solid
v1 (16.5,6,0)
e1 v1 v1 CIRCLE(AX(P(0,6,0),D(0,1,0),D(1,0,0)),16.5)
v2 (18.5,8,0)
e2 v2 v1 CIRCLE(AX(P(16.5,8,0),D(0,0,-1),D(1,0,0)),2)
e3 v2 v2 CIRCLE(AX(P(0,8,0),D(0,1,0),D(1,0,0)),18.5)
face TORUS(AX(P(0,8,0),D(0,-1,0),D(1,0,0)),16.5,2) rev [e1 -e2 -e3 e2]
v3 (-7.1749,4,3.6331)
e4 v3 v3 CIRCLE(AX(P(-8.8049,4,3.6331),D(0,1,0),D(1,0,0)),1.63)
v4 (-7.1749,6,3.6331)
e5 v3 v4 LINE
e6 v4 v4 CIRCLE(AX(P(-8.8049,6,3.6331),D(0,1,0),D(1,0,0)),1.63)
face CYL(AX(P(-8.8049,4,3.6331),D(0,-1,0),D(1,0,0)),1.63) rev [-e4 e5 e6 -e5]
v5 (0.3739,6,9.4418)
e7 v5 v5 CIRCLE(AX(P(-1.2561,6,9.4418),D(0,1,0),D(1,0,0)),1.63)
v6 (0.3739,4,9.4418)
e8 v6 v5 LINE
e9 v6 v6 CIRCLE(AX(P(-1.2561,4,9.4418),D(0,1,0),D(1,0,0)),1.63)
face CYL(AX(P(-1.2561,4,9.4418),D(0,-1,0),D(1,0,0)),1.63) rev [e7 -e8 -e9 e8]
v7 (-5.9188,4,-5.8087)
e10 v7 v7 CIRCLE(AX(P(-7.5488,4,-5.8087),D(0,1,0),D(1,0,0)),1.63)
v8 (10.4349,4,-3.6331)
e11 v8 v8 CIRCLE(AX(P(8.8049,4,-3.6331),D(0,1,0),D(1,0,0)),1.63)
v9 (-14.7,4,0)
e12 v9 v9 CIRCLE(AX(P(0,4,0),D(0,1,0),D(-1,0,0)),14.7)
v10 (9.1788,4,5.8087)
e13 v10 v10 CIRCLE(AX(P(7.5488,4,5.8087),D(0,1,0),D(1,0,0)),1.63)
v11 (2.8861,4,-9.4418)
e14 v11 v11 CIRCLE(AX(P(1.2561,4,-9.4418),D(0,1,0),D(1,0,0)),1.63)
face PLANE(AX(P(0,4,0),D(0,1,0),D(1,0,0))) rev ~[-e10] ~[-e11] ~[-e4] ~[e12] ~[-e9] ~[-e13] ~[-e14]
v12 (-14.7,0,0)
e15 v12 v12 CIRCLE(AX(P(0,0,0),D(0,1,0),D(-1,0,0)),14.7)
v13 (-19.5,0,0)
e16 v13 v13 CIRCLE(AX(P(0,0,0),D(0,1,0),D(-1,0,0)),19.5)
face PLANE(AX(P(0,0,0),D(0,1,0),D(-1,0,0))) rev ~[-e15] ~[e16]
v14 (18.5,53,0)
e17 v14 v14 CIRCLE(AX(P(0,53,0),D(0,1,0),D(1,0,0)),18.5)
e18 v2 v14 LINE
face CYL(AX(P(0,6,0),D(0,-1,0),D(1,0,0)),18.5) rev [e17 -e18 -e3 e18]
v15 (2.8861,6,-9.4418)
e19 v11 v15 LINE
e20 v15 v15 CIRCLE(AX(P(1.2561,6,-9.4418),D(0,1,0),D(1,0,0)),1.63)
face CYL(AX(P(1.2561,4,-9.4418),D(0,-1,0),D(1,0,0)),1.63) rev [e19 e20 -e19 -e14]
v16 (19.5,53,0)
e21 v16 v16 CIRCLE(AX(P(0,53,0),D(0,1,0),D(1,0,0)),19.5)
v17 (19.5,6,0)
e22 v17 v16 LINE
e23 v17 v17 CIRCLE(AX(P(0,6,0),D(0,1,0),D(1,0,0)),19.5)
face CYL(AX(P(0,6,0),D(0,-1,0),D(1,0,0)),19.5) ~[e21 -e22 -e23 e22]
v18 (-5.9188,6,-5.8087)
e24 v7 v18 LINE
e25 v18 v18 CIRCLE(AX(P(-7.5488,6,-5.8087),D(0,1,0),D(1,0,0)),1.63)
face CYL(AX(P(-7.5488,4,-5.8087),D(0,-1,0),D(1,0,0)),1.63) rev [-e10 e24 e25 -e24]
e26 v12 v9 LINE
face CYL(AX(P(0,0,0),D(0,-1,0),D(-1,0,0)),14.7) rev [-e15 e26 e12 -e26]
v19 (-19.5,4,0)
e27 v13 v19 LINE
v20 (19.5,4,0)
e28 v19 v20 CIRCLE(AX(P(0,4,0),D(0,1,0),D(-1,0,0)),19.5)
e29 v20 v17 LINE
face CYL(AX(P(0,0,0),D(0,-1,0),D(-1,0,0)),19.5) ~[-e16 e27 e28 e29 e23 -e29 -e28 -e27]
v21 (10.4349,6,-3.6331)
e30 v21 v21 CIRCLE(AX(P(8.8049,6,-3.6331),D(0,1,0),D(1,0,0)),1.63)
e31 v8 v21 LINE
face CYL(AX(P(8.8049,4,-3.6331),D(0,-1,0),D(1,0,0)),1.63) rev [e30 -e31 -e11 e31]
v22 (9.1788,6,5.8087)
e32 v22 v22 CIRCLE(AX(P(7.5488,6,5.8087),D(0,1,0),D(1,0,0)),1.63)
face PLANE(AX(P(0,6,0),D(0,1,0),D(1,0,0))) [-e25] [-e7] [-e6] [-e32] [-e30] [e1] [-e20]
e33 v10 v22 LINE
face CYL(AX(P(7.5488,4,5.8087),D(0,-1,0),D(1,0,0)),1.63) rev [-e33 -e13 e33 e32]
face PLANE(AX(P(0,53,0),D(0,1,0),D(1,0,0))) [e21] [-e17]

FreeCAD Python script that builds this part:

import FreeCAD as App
import Part
import Sketcher


def edges_at(feature, points):
    """Names of the edges that pass closest to the given points."""
    edges = feature.Shape.Edges
    near = lambda p: min(range(len(edges)), key=lambda i: edges[i].distToShape(Part.Vertex(*p))[0])
    return sorted({f"Edge{near(p) + 1}" for p in points})

doc = App.newDocument("Part")
body = doc.addObject("PartDesign::Body", "Body")

sketch1 = body.newObject("Sketcher::SketchObject", "Sketch")
sketch1.AttachmentSupport = (doc.getObject("XZ_Plane"), [""])
sketch1.MapMode = "FlatFace"
sketch1.addGeometry([
    Part.Circle(App.Vector(0, 0, 0), App.Vector(0, 0, 1), 19.5),
    Part.Circle(App.Vector(0, 0, 0), App.Vector(0, 0, 1), 14.7),
], False)
sketch1.addConstraint([
    Sketcher.Constraint("Coincident", 0, 3, -1, 1),
    Sketcher.Constraint("Coincident", 1, 3, -1, 1),
    Sketcher.Constraint("Diameter", 0, 39.0),
    Sketcher.Constraint("Diameter", 1, 29.4),
])
pad1 = body.newObject("PartDesign::Pad", "Pad")
pad1.Profile = sketch1
pad1.Length = 4
pad1.Reversed = True

sketch2 = body.newObject("Sketcher::SketchObject", "Sketch001")
sketch2.AttachmentSupport = (doc.getObject("XZ_Plane"), [""])
sketch2.MapMode = "FlatFace"
sketch2.AttachmentOffset = App.Placement(App.Vector(0, 0, -4), App.Rotation())
sketch2.addGeometry([
    Part.Circle(App.Vector(0, 0, 0), App.Vector(0, 0, 1), 19.5),
    Part.Circle(App.Vector(1.2561, -9.4418, 0), App.Vector(0, 0, 1), 1.63),
    Part.Circle(App.Vector(-1.2561, 9.4418, 0), App.Vector(0, 0, 1), 1.63),
    Part.Circle(App.Vector(-8.8049, 3.6331, 0), App.Vector(0, 0, 1), 1.63),
    Part.Circle(App.Vector(7.5488, 5.8087, 0), App.Vector(0, 0, 1), 1.63),
    Part.Circle(App.Vector(-7.5488, -5.8087, 0), App.Vector(0, 0, 1), 1.63),
    Part.Circle(App.Vector(8.8049, -3.6331, 0), App.Vector(0, 0, 1), 1.63),
], False)
sketch2.addConstraint([
    Sketcher.Constraint("Coincident", 0, 3, -1, 1),
    Sketcher.Constraint("Equal", 1, 2),
    Sketcher.Constraint("Equal", 2, 3),
    Sketcher.Constraint("Equal", 3, 4),
    Sketcher.Constraint("Equal", 4, 5),
    Sketcher.Constraint("Equal", 5, 6),
    Sketcher.Constraint("Symmetric", 1, 3, 2, 3, -1, 1),
    Sketcher.Constraint("Symmetric", 4, 3, 5, 3, -1, 1),
    Sketcher.Constraint("Symmetric", 3, 3, 6, 3, -1, 1),
    Sketcher.Constraint("Diameter", 0, 39.0),
    Sketcher.Constraint("Diameter", 1, 3.26),
    Sketcher.Constraint("DistanceX", -1, 1, 1, 3, 1.256),
    Sketcher.Constraint("DistanceX", 3, 3, -1, 1, 8.805),
    Sketcher.Constraint("DistanceY", -1, 1, 3, 3, 3.633),
    Sketcher.Constraint("DistanceY", 1, 3, 3, 3, 13.075),
    Sketcher.Constraint("DistanceX", 2, 3, 4, 3, 8.805),
    Sketcher.Constraint("DistanceY", 4, 3, 2, 3, 3.633),
])
pad2 = body.newObject("PartDesign::Pad", "Pad001")
pad2.Profile = sketch2
pad2.Length = 2
pad2.Reversed = True

sketch3 = body.newObject("Sketcher::SketchObject", "Sketch002")
sketch3.AttachmentSupport = (doc.getObject("XZ_Plane"), [""])
sketch3.MapMode = "FlatFace"
sketch3.AttachmentOffset = App.Placement(App.Vector(0, 0, -6), App.Rotation())
sketch3.addGeometry([
    Part.Circle(App.Vector(0, 0, 0), App.Vector(0, 0, 1), 19.5),
    Part.Circle(App.Vector(0, 0, 0), App.Vector(0, 0, 1), 18.5),
], False)
sketch3.addConstraint([
    Sketcher.Constraint("Coincident", 0, 3, -1, 1),
    Sketcher.Constraint("Coincident", 1, 3, -1, 1),
    Sketcher.Constraint("Diameter", 0, 39.0),
    Sketcher.Constraint("Diameter", 1, 37.0),
])
pad3 = body.newObject("PartDesign::Pad", "Pad002")
pad3.Profile = sketch3
pad3.Length = 47
pad3.Reversed = True
doc.recompute()

fillet = body.newObject("PartDesign::Fillet", "Fillet")
fillet.Base = (pad3, edges_at(pad3, [(-18.5, 6, 0)]))
fillet.Radius = 2

doc.recompute()
